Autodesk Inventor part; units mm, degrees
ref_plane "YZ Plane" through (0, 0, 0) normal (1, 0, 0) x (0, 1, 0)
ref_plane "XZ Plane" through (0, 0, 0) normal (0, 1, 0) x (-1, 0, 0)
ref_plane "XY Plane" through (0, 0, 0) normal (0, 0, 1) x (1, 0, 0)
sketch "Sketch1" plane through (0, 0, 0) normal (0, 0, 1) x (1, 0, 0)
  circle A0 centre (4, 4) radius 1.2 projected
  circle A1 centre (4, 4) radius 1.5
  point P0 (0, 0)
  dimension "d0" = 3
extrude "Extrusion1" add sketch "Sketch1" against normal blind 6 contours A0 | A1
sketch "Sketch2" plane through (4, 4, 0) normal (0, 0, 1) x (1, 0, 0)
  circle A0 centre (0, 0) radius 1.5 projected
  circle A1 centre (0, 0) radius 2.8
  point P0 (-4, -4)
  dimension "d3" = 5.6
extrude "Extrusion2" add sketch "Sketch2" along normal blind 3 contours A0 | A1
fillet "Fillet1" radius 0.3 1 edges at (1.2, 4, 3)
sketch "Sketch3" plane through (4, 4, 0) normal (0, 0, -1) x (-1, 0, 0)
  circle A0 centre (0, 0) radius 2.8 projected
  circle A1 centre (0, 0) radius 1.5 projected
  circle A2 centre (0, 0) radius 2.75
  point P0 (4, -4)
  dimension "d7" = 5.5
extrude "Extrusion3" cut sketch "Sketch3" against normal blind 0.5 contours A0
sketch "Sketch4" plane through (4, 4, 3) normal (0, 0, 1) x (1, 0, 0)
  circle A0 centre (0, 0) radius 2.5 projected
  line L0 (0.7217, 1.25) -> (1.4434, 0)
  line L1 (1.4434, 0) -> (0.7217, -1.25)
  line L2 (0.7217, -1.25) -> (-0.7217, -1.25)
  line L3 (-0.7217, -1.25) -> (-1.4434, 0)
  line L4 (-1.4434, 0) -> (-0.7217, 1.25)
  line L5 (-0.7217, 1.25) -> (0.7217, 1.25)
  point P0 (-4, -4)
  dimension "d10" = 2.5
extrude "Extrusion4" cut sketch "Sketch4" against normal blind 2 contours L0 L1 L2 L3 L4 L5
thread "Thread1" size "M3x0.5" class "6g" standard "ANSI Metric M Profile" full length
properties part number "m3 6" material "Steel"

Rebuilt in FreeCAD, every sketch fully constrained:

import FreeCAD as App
import Part
import Sketcher
Q = App.Units.Quantity


def edges_at(feature, points):
    """Names of the edges that pass closest to the given points."""
    edges = feature.Shape.Edges
    near = lambda p: min(range(len(edges)), key=lambda i: edges[i].distToShape(Part.Vertex(*p))[0])
    return sorted({f"Edge{near(p) + 1}" for p in points})


def add_polygon(sketch, points):
    """Adds a closed chain of lines whose ends are joined by coincident constraints."""
    first, n = sketch.GeometryCount, len(points)
    for a, b in zip(points, points[1:] + points[:1]):
        sketch.addGeometry(Part.LineSegment(App.Vector(*a, 0), App.Vector(*b, 0)), False)
    for i in range(n):
        sketch.addConstraint(Sketcher.Constraint("Coincident", first + i, 2, first + (i + 1) % n, 1))

doc = App.newDocument("Part")
body = doc.addObject("PartDesign::Body", "Body")

# Sketch on XY plane
sketch1 = body.newObject("Sketcher::SketchObject", "Sketch")
sketch1.AttachmentSupport = (doc.getObject("XY_Plane"), [""])
sketch1.MapMode = "FlatFace"
sketch1.addGeometry(Part.Circle(App.Vector(4, 4, 0), App.Vector(0, 0, 1), 1.5), False)
sketch1.addConstraint(Sketcher.Constraint("Diameter", 0, Q("3 mm")))
sketch1.addConstraint(Sketcher.Constraint("DistanceX", -1, 1, 0, 3, Q("4 mm")))
sketch1.addConstraint(Sketcher.Constraint("DistanceY", -1, 1, 0, 3, Q("4 mm")))
pad1 = body.newObject("PartDesign::Pad", "Pad")
pad1.Profile = sketch1
pad1.Length = 6
pad1.Reversed = True

# Sketch on XY plane
sketch2 = body.newObject("Sketcher::SketchObject", "Sketch001")
sketch2.AttachmentSupport = (doc.getObject("XY_Plane"), [""])
sketch2.MapMode = "FlatFace"
sketch2.addGeometry(Part.Circle(App.Vector(4, 4, 0), App.Vector(0, 0, 1), 2.8), False)
sketch2.addConstraint(Sketcher.Constraint("Diameter", 0, Q("5.6 mm")))
sketch2.addConstraint(Sketcher.Constraint("DistanceX", -1, 1, 0, 3, Q("4 mm")))
sketch2.addConstraint(Sketcher.Constraint("DistanceY", -1, 1, 0, 3, Q("4 mm")))
pad2 = body.newObject("PartDesign::Pad", "Pad001")
pad2.Profile = sketch2
pad2.Length = 3
doc.recompute()

fillet = body.newObject("PartDesign::Fillet", "Fillet")
fillet.Base = (pad2, edges_at(pad2, [(1.2, 4, 3)]))
fillet.Radius = 0.3

# Sketch on XY plane
sketch3 = body.newObject("Sketcher::SketchObject", "Sketch002")
sketch3.AttachmentSupport = (doc.getObject("XY_Plane"), [""])
sketch3.MapMode = "FlatFace"
sketch3.addGeometry(Part.Circle(App.Vector(4, 4, 0), App.Vector(0, 0, 1), 2.8), False)
sketch3.addGeometry(Part.Circle(App.Vector(4, 4, 0), App.Vector(0, 0, 1), 2.8), False)
sketch3.addConstraint(Sketcher.Constraint("Coincident", 1, 3, 0, 3))
sketch3.addConstraint(Sketcher.Constraint("Diameter", 1, Q("5.5 mm")))
sketch3.addConstraint(Sketcher.Constraint("Diameter", 0, Q("5.6 mm")))
sketch3.addConstraint(Sketcher.Constraint("DistanceX", -1, 1, 0, 3, Q("4 mm")))
sketch3.addConstraint(Sketcher.Constraint("DistanceY", -1, 1, 0, 3, Q("4 mm")))
pocket1 = body.newObject("PartDesign::Pocket", "Pocket")
pocket1.Profile = sketch3
pocket1.Length = 0.5
pocket1.Reversed = True

# Sketch on XY plane
sketch4 = body.newObject("Sketcher::SketchObject", "Sketch003")
sketch4.AttachmentSupport = (doc.getObject("XY_Plane"), [""])
sketch4.MapMode = "FlatFace"
sketch4.AttachmentOffset = App.Placement(App.Vector(0, 0, 3), App.Rotation())
add_polygon(sketch4, [(5.4, 4), (4.7, 5.2), (3.3, 5.2), (2.6, 4), (3.3, 2.8), (4.7, 2.8)])  # lines 0-5
sketch4.addConstraint(Sketcher.Constraint("Horizontal", 1))
sketch4.addConstraint(Sketcher.Constraint("Horizontal", 4))
sketch4.addConstraint(Sketcher.Constraint("Parallel", 0, 3))
sketch4.addConstraint(Sketcher.Constraint("Parallel", 2, 5))
sketch4.addConstraint(Sketcher.Constraint("Horizontal", 2, 2, 5, 2))
sketch4.addConstraint(Sketcher.Constraint("Vertical", 1, 2, 3, 2))
sketch4.addConstraint(Sketcher.Constraint("Vertical", 0, 2, 4, 2))
sketch4.addConstraint(Sketcher.Constraint("DistanceY", 3, 2, 1, 2, Q("2.5 mm")))
sketch4.addConstraint(Sketcher.Constraint("Angle", 0, Q("120.0004 deg")))
sketch4.addConstraint(Sketcher.Constraint("DistanceY", -1, 1, 2, 2, Q("4 mm")))
sketch4.addConstraint(Sketcher.Constraint("DistanceX", 1, 2, 1, 1, Q("1.4434 mm")))
sketch4.addConstraint(Sketcher.Constraint("DistanceX", -1, 1, 0, 2, Q("4.7217 mm")))
pocket2 = body.newObject("PartDesign::Pocket", "Pocket001")
pocket2.Profile = sketch4
pocket2.Length = 2

doc.recompute()
